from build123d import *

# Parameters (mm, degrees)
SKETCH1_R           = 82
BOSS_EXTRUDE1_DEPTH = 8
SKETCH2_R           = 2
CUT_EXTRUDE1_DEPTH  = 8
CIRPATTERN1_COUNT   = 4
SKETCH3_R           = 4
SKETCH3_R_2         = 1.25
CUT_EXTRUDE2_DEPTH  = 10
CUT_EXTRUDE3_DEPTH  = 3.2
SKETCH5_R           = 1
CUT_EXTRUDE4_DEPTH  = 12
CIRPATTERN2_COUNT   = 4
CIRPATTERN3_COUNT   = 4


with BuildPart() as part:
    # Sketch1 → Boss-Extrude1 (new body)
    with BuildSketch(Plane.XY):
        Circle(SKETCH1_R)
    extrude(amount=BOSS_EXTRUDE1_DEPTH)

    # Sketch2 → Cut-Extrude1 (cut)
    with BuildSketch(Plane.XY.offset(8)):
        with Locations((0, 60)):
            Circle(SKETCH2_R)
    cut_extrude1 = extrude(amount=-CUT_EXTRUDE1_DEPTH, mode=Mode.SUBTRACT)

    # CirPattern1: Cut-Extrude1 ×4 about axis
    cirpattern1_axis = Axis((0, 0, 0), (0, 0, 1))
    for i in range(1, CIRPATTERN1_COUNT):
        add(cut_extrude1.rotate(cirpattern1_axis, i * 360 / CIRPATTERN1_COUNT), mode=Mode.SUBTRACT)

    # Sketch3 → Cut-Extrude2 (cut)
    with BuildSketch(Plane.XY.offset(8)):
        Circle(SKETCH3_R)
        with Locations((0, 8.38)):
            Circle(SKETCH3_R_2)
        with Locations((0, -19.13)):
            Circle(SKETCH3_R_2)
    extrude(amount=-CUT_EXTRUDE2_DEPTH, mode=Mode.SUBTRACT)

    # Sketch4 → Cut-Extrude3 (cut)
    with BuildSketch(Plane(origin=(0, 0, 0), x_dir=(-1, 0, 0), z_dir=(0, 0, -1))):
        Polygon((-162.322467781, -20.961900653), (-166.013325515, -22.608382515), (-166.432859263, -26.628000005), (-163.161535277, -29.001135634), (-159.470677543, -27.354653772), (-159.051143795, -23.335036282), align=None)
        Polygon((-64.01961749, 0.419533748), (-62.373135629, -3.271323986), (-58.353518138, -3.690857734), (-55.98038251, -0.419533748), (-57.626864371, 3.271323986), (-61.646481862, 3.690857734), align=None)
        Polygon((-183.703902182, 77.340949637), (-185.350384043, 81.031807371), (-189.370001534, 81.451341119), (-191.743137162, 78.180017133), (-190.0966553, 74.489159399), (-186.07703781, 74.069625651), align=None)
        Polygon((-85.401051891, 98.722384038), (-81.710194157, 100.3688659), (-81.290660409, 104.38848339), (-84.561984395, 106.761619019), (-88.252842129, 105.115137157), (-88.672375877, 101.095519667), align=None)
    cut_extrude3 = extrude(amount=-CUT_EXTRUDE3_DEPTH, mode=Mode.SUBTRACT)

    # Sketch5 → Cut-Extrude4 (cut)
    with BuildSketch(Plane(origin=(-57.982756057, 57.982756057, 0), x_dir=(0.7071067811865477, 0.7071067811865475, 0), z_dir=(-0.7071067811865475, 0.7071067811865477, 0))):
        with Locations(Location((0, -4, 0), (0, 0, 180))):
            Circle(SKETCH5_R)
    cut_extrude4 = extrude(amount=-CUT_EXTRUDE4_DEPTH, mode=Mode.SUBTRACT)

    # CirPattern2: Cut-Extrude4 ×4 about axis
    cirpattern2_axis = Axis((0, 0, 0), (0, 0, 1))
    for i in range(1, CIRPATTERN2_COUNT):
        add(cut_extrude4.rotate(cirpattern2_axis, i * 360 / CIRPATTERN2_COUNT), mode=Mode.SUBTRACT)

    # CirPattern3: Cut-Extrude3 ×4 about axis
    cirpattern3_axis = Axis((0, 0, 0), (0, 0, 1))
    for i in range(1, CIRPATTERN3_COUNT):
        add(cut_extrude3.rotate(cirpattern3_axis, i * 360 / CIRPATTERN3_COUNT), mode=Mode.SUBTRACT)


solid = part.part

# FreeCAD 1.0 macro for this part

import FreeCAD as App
import Part
import Sketcher
from FreeCAD import Vector
Q = App.Units.Quantity


def add_polygon(sketch, points):
    """Adds a closed chain of lines whose ends are joined by coincident constraints."""
    first, n = sketch.GeometryCount, len(points)
    for a, b in zip(points, points[1:] + points[:1]):
        sketch.addGeometry(Part.LineSegment(App.Vector(*a, 0), App.Vector(*b, 0)), False)
    for i in range(n):
        sketch.addConstraint(Sketcher.Constraint("Coincident", first + i, 2, first + (i + 1) % n, 1))

doc = App.newDocument("Part")
body = doc.addObject("PartDesign::Body", "Body")

sketch1 = body.newObject("Sketcher::SketchObject", "Sketch")
sketch1.AttachmentSupport = (doc.getObject("XY_Plane"), [""])
sketch1.MapMode = "FlatFace"
sketch1.addGeometry(Part.Circle(Vector(0, 0, 0), Vector(0, 0, 1), 82), False)
sketch1.addConstraint([
    Sketcher.Constraint("Coincident", 0, 3, -1, 1),
    Sketcher.Constraint("Diameter", 0, Q("164 mm")),
])
pad1 = body.newObject("PartDesign::Pad", "Pad")
pad1.Profile = sketch1
pad1.Length = 8

sketch2 = body.newObject("Sketcher::SketchObject", "Sketch001")
sketch2.AttachmentSupport = (doc.getObject("XY_Plane"), [""])
sketch2.MapMode = "FlatFace"
sketch2.AttachmentOffset = App.Placement(Vector(0, 0, 8), App.Rotation())
sketch2.addGeometry(Part.Circle(Vector(0, 60, 0), Vector(0, 0, 1), 2), False)
sketch2.addConstraint([
    Sketcher.Constraint("PointOnObject", 0, 3, -2),
    Sketcher.Constraint("Diameter", 0, Q("4 mm")),
    Sketcher.Constraint("DistanceY", -1, 1, 0, 3, Q("60 mm")),
])
pocket1 = body.newObject("PartDesign::Pocket", "Pocket")
pocket1.Profile = sketch2
pocket1.Length = 8
doc.recompute()

polarpattern = body.newObject("PartDesign::PolarPattern", "PolarPattern")
polarpattern.Originals = [pocket1]
polarpattern.Axis = (doc.getObject("Z_Axis"), [""])
polarpattern.Angle = 360
polarpattern.Occurrences = 4
body.Tip = polarpattern

sketch3 = body.newObject("Sketcher::SketchObject", "Sketch002")
sketch3.AttachmentSupport = (doc.getObject("XY_Plane"), [""])
sketch3.MapMode = "FlatFace"
sketch3.AttachmentOffset = App.Placement(Vector(0, 0, 8), App.Rotation())
sketch3.addGeometry([
    Part.Circle(Vector(0, 0, 0), Vector(0, 0, 1), 4),
    Part.Circle(Vector(0, 8.4, 0), Vector(0, 0, 1), 1.2),
    Part.Circle(Vector(0, -19.1, 0), Vector(0, 0, 1), 1.2),
], False)
sketch3.addConstraint([
    Sketcher.Constraint("Coincident", 0, 3, -1, 1),
    Sketcher.Constraint("Equal", 1, 2),
    Sketcher.Constraint("PointOnObject", 1, 3, -2),
    Sketcher.Constraint("PointOnObject", 2, 3, -2),
    Sketcher.Constraint("Diameter", 0, Q("8 mm")),
    Sketcher.Constraint("Diameter", 1, Q("2.5 mm")),
    Sketcher.Constraint("DistanceY", -1, 1, 1, 3, Q("8.38 mm")),
    Sketcher.Constraint("DistanceY", 2, 3, -1, 1, Q("19.13 mm")),
])
pocket2 = body.newObject("PartDesign::Pocket", "Pocket001")
pocket2.Profile = sketch3
pocket2.Length = 10

sketch4 = body.newObject("Sketcher::SketchObject", "Sketch003")
sketch4.AttachmentSupport = (doc.getObject("XY_Plane"), [""])
sketch4.MapMode = "FlatFace"
add_polygon(sketch4, [(162.3, -21), (166, -22.6), (166.4, -26.6), (163.2, -29), (159.5, -27.4), (159.1, -23.3)])
add_polygon(sketch4, [(64, 0.4), (62.4, -3.3), (58.4, -3.7), (56, -0.4), (57.6, 3.3), (61.6, 3.7)])
add_polygon(sketch4, [(183.7, 77.3), (185.4, 81), (189.4, 81.5), (191.7, 78.2), (190.1, 74.5), (186.1, 74.1)])
add_polygon(sketch4, [(85.4, 98.7), (81.7, 100.4), (81.3, 104.4), (84.6, 106.8), (88.3, 105.1), (88.7, 101.1)])
sketch4.addConstraint([
    Sketcher.Constraint("Parallel", 0, 3),
    Sketcher.Constraint("Parallel", 1, 4),
    Sketcher.Constraint("Parallel", 2, 5),
    Sketcher.Constraint("Perpendicular", 3, 6),
    Sketcher.Constraint("Perpendicular", 4, 7),
    Sketcher.Constraint("Perpendicular", 5, 8),
    Sketcher.Constraint("Parallel", 6, 9),
    Sketcher.Constraint("Parallel", 7, 10),
    Sketcher.Constraint("Parallel", 8, 11),
    Sketcher.Constraint("Parallel", 9, 12),
    Sketcher.Constraint("Parallel", 10, 13),
    Sketcher.Constraint("Parallel", 11, 14),
    Sketcher.Constraint("Parallel", 12, 15),
    Sketcher.Constraint("Parallel", 13, 16),
    Sketcher.Constraint("Parallel", 14, 17),
    Sketcher.Constraint("Perpendicular", 15, 18),
    Sketcher.Constraint("Perpendicular", 16, 19),
    Sketcher.Constraint("Perpendicular", 17, 20),
    Sketcher.Constraint("Parallel", 18, 21),
    Sketcher.Constraint("Parallel", 19, 22),
    Sketcher.Constraint("Parallel", 20, 23),
    Sketcher.Constraint("Equal", 0, 1),
    Sketcher.Constraint("Equal", 1, 2),
    Sketcher.Constraint("Equal", 2, 3),
    Sketcher.Constraint("Equal", 5, 6),
    Sketcher.Constraint("Equal", 6, 7),
    Sketcher.Constraint("Equal", 7, 8),
    Sketcher.Constraint("Equal", 8, 9),
    Sketcher.Constraint("Equal", 11, 12),
    Sketcher.Constraint("Equal", 12, 13),
    Sketcher.Constraint("Equal", 13, 14),
    Sketcher.Constraint("Equal", 14, 15),
    Sketcher.Constraint("Equal", 17, 18),
    Sketcher.Constraint("Equal", 18, 19),
    Sketcher.Constraint("Equal", 19, 20),
    Sketcher.Constraint("Equal", 20, 21),
    Sketcher.Constraint("DistanceX", -1, 1, 13, 2, Q("189.370002 mm")),
    Sketcher.Constraint("DistanceY", 1, 2, -1, 1, Q("26.628 mm")),
    Sketcher.Constraint("DistanceY", 5, 2, -1, 1, Q("20.961901 mm")),
    Sketcher.Constraint("DistanceX", 6, 2, 2, 2, Q("100.7884 mm")),
    Sketcher.Constraint("DistanceY", 0, 2, 14, 2, Q("100.7884 mm")),
    Sketcher.Constraint("DistanceY", 8, 2, 18, 2, Q("100.7884 mm")),
    Sketcher.Constraint("DistanceX", 20, 2, 12, 2, Q("100.7884 mm")),
    Sketcher.Constraint("Distance", 0, Q("4.041452 mm")),
    Sketcher.Constraint("DistanceX", -1, 1, 1, 2, Q("166.432859 mm")),
    Sketcher.Constraint("DistanceX", -1, 1, 7, 2, Q("58.353518 mm")),
    Sketcher.Constraint("DistanceX", -1, 1, 10, 2, Q("61.646482 mm")),
    Sketcher.Constraint("DistanceY", -1, 1, 20, 2, Q("106.761619 mm")),
])
pocket3 = body.newObject("PartDesign::Pocket", "Pocket002")
pocket3.Profile = sketch4
pocket3.Length = 3.2
pocket3.Reversed = True

sketch5 = body.newObject("Sketcher::SketchObject", "Sketch004")
sketch5.Placement = App.Placement(Vector(-57.982756, 57.982756, 0), App.Rotation(Vector(0.707106781, 0.707106781, 0), Vector(0, 0, -0.999999999), Vector(-0.707106781, 0.707106781, 0), "ZXY"))
sketch5.addGeometry(Part.Circle(Vector(0, -4, 0), Vector(0, 0, 1), 1), False)
sketch5.addConstraint([
    Sketcher.Constraint("PointOnObject", 0, 3, -2),
    Sketcher.Constraint("Diameter", 0, Q("2 mm")),
    Sketcher.Constraint("DistanceY", 0, 3, -1, 1, Q("4 mm")),
])
pocket4 = body.newObject("PartDesign::Pocket", "Pocket003")
pocket4.Profile = sketch5
pocket4.Length = 12
doc.recompute()

polarpattern2 = body.newObject("PartDesign::PolarPattern", "PolarPattern001")
polarpattern2.Originals = [pocket4]
polarpattern2.Axis = (doc.getObject("Z_Axis"), [""])
polarpattern2.Angle = 360
polarpattern2.Occurrences = 4
body.Tip = polarpattern2
doc.recompute()

polarpattern3 = body.newObject("PartDesign::PolarPattern", "PolarPattern002")
polarpattern3.Originals = [pocket3]
polarpattern3.Axis = (doc.getObject("Z_Axis"), [""])
polarpattern3.Angle = 360
polarpattern3.Occurrences = 4
body.Tip = polarpattern3

doc.recompute()
